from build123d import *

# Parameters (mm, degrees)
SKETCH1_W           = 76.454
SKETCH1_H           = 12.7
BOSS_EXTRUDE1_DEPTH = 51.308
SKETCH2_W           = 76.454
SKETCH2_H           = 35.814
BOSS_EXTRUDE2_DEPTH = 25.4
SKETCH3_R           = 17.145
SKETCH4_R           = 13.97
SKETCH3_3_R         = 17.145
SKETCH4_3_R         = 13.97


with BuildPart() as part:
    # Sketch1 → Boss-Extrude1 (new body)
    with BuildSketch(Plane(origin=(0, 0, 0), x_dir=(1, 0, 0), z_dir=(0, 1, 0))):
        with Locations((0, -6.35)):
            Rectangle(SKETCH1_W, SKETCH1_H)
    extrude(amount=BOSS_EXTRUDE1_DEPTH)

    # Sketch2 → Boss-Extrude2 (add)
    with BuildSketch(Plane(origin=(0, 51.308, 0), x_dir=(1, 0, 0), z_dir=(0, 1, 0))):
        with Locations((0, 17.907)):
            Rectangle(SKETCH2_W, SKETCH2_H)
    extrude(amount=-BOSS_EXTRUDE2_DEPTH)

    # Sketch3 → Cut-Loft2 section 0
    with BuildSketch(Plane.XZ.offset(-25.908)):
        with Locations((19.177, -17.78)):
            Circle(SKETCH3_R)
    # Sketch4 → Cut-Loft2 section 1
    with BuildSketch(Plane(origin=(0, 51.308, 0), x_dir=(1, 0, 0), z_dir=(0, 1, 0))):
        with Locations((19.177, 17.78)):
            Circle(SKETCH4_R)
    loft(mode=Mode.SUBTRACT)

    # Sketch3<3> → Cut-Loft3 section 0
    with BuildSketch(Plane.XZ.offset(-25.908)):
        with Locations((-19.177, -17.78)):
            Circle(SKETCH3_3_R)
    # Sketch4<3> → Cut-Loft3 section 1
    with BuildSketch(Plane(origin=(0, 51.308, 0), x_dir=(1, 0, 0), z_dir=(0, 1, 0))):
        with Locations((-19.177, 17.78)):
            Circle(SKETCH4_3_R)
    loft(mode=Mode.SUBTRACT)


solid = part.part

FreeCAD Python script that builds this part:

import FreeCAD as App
import Part
import Sketcher
from FreeCAD import Vector
Q = App.Units.Quantity

doc = App.newDocument("Part")
params = doc.addObject("Spreadsheet::Sheet", "Params")
for row, (alias, value) in enumerate([
    ("sketch1_height", "0.5 in"),
    ("sketch1_width", "3.01 in"),
    ("pad1_length", "2.02 in"),
    ("sketch2_width", "3.01 in"),
    ("sketch2_height", "1.41 in"),
    ("pad2_length", "1 in"),
    ("sketch3_diameter", "1.35 in"),
    ("sketch4_diameter", "1.1 in"),
    ("sketch5_diameter", "1.35 in"),
    ("sketch6_diameter", "1.1 in"),
], start=1):
    params.set(f"A{row}", alias)
    params.set(f"B{row}", "=" + value)
    params.setAlias(f"B{row}", alias)

body = doc.addObject("PartDesign::Body", "Body")

# Sketch on XZ plane
sketch1 = body.newObject("Sketcher::SketchObject", "Sketch")
sketch1.AttachmentSupport = (doc.getObject("XZ_Plane"), [""])
sketch1.MapMode = "FlatFace"
sketch1.addGeometry([
    Part.LineSegment(Vector(-38, 0, 0), Vector(-38, 13, 0)),
    Part.LineSegment(Vector(-38, 13, 0), Vector(38, 13, 0)),
    Part.LineSegment(Vector(38, 13, 0), Vector(38, 0, 0)),
    Part.LineSegment(Vector(38, 0, 0), Vector(-38, 0, 0)),
], False)
sketch1.addConstraint([
    Sketcher.Constraint("Coincident", 0, 2, 1, 1),
    Sketcher.Constraint("Coincident", 1, 2, 2, 1),
    Sketcher.Constraint("Coincident", 2, 2, 3, 1),
    Sketcher.Constraint("Coincident", 3, 2, 0, 1),
    Sketcher.Constraint("Vertical", 0),
    Sketcher.Constraint("Horizontal", 1),
    Sketcher.Constraint("Vertical", 2),
    Sketcher.Constraint("Horizontal", 3),
    Sketcher.Constraint("Symmetric", 2, 2, 3, 2, -1, 1),
    Sketcher.Constraint("DistanceY", 0, 1, 0, 2, Q("0.5 in")),
    Sketcher.Constraint("DistanceX", 1, 1, 1, 2, Q("3.01 in")),
])
sketch1.setExpression("Constraints[9]", "Params.sketch1_height")
sketch1.setExpression("Constraints[10]", "Params.sketch1_width")
pad1 = body.newObject("PartDesign::Pad", "Pad")
pad1.Profile = sketch1
pad1.setExpression("Length", "Params.pad1_length")
pad1.Reversed = True

# Sketch on XZ plane
sketch2 = body.newObject("Sketcher::SketchObject", "Sketch001")
sketch2.AttachmentSupport = (doc.getObject("XZ_Plane"), [""])
sketch2.MapMode = "FlatFace"
sketch2.AttachmentOffset = App.Placement(Vector(0, 0, -2.02 * 25.4), App.Rotation())
sketch2.addGeometry([
    Part.LineSegment(Vector(-38, -36, 0), Vector(-38, 0, 0)),
    Part.LineSegment(Vector(-38, 0, 0), Vector(38, 0, 0)),
    Part.LineSegment(Vector(38, 0, 0), Vector(38, -36, 0)),
    Part.LineSegment(Vector(38, -36, 0), Vector(-38, -36, 0)),
], False)
sketch2.addConstraint([
    Sketcher.Constraint("Coincident", 0, 2, 1, 1),
    Sketcher.Constraint("Coincident", 1, 2, 2, 1),
    Sketcher.Constraint("Coincident", 2, 2, 3, 1),
    Sketcher.Constraint("Coincident", 3, 2, 0, 1),
    Sketcher.Constraint("Vertical", 0),
    Sketcher.Constraint("Horizontal", 1),
    Sketcher.Constraint("Vertical", 2),
    Sketcher.Constraint("Horizontal", 3),
    Sketcher.Constraint("Symmetric", 0, 2, 1, 2, -1, 1),
    Sketcher.Constraint("DistanceX", 1, 1, 1, 2, Q("3.01 in")),
    Sketcher.Constraint("DistanceY", 0, 1, 0, 2, Q("1.41 in")),
])
sketch2.setExpression("Constraints[9]", "Params.sketch2_width")
sketch2.setExpression("Constraints[10]", "Params.sketch2_height")
pad2 = body.newObject("PartDesign::Pad", "Pad001")
pad2.Profile = sketch2
pad2.setExpression("Length", "Params.pad2_length")

# Sketch on XZ plane
sketch3 = body.newObject("Sketcher::SketchObject", "Sketch002")
sketch3.AttachmentSupport = (doc.getObject("XZ_Plane"), [""])
sketch3.MapMode = "FlatFace"
sketch3.AttachmentOffset = App.Placement(Vector(0, 0, -1.02 * 25.4), App.Rotation())
sketch3.addGeometry(Part.Circle(Vector(19, -18, 0), Vector(0, 0, 1), 17), False)
sketch3.addConstraint([
    Sketcher.Constraint("Diameter", 0, Q("1.35 in")),
    Sketcher.Constraint("DistanceY", 0, 3, -1, 1, Q("0.7 in")),
    Sketcher.Constraint("DistanceX", -1, 1, 0, 3, Q("0.755 in")),
])
sketch3.setExpression("Constraints[0]", "Params.sketch3_diameter")

# Sketch on XZ plane
sketch4 = body.newObject("Sketcher::SketchObject", "Sketch003")
sketch4.AttachmentSupport = (doc.getObject("XZ_Plane"), [""])
sketch4.MapMode = "FlatFace"
sketch4.AttachmentOffset = App.Placement(Vector(0, 0, -2.02 * 25.4), App.Rotation())
sketch4.addGeometry(Part.Circle(Vector(19, -18, 0), Vector(0, 0, 1), 14), False)
sketch4.addConstraint([
    Sketcher.Constraint("Diameter", 0, Q("1.1 in")),
    Sketcher.Constraint("DistanceY", 0, 3, -1, 1, Q("0.7 in")),
    Sketcher.Constraint("DistanceX", -1, 1, 0, 3, Q("0.755 in")),
])
sketch4.setExpression("Constraints[0]", "Params.sketch4_diameter")

subtractiveloft = body.newObject("PartDesign::SubtractiveLoft", "SubtractiveLoft")
subtractiveloft.Profile = sketch3
subtractiveloft.Sections = [sketch4]

# Sketch on XZ plane
sketch5 = body.newObject("Sketcher::SketchObject", "Sketch004")
sketch5.AttachmentSupport = (doc.getObject("XZ_Plane"), [""])
sketch5.MapMode = "FlatFace"
sketch5.AttachmentOffset = App.Placement(Vector(0, 0, -1.02 * 25.4), App.Rotation())
sketch5.addGeometry(Part.Circle(Vector(-19, -18, 0), Vector(0, 0, 1), 17), False)
sketch5.addConstraint([
    Sketcher.Constraint("Diameter", 0, Q("1.35 in")),
    Sketcher.Constraint("DistanceY", 0, 3, -1, 1, Q("0.7 in")),
    Sketcher.Constraint("DistanceX", 0, 3, -1, 1, Q("0.755 in")),
])
sketch5.setExpression("Constraints[0]", "Params.sketch5_diameter")

# Sketch on XZ plane
sketch6 = body.newObject("Sketcher::SketchObject", "Sketch005")
sketch6.AttachmentSupport = (doc.getObject("XZ_Plane"), [""])
sketch6.MapMode = "FlatFace"
sketch6.AttachmentOffset = App.Placement(Vector(0, 0, -2.02 * 25.4), App.Rotation())
sketch6.addGeometry(Part.Circle(Vector(-19, -18, 0), Vector(0, 0, 1), 14), False)
sketch6.addConstraint([
    Sketcher.Constraint("Diameter", 0, Q("1.1 in")),
    Sketcher.Constraint("DistanceY", 0, 3, -1, 1, Q("0.7 in")),
    Sketcher.Constraint("DistanceX", 0, 3, -1, 1, Q("0.755 in")),
])
sketch6.setExpression("Constraints[0]", "Params.sketch6_diameter")

subtractiveloft2 = body.newObject("PartDesign::SubtractiveLoft", "SubtractiveLoft001")
subtractiveloft2.Profile = sketch5
subtractiveloft2.Sections = [sketch6]

doc.recompute()
